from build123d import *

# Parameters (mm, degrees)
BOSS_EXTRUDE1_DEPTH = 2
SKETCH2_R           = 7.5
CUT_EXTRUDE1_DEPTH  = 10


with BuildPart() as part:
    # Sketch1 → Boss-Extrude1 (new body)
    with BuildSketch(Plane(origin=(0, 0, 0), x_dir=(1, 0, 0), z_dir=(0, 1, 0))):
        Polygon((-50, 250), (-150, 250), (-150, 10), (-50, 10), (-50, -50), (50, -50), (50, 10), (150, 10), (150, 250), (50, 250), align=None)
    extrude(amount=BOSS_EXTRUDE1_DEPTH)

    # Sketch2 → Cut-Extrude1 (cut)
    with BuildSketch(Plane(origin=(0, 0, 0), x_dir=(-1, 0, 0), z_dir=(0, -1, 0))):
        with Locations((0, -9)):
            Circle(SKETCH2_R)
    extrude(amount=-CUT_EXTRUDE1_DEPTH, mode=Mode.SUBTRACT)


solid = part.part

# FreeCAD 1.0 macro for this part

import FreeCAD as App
import Part
import Sketcher

V = App.Vector
Q = App.Units.Quantity


def add_polygon(sketch, points):
    """Adds a closed chain of lines whose ends are joined by coincident constraints."""
    first, n = sketch.GeometryCount, len(points)
    for a, b in zip(points, points[1:] + points[:1]):
        sketch.addGeometry(Part.LineSegment(App.Vector(*a, 0), App.Vector(*b, 0)), False)
    for i in range(n):
        sketch.addConstraint(Sketcher.Constraint("Coincident", first + i, 2, first + (i + 1) % n, 1))

doc = App.newDocument("Part")
body = doc.addObject("PartDesign::Body", "Body")

sketch1 = body.newObject("Sketcher::SketchObject", "Sketch")
sketch1.AttachmentSupport = (doc.getObject("XZ_Plane"), [""])
sketch1.MapMode = "FlatFace"
add_polygon(sketch1, [(-150, -250), (-150, -10), (-50, -10), (-50, 50), (50, 50), (50, -10), (150, -10), (150, -250)])
sketch1.addConstraint([
    Sketcher.Constraint("Vertical", 0),
    Sketcher.Constraint("Horizontal", 1),
    Sketcher.Constraint("Vertical", 2),
    Sketcher.Constraint("Horizontal", 3),
    Sketcher.Constraint("Vertical", 4),
    Sketcher.Constraint("Horizontal", 5),
    Sketcher.Constraint("Vertical", 6),
    Sketcher.Constraint("Horizontal", 7),
    Sketcher.Constraint("Symmetric", 1, 2, 4, 2, -2),
    Sketcher.Constraint("Equal", 1, 3),
    Sketcher.Constraint("Equal", 3, 5),
    Sketcher.Constraint("DistanceX", 1, 1, 1, 2, Q("100 mm")),
    Sketcher.Constraint("DistanceY", 0, 1, 0, 2, Q("240 mm")),
    Sketcher.Constraint("DistanceY", 2, 1, 2, 2, Q("60 mm")),
    Sketcher.Constraint("DistanceY", 0, 2, -1, 1, Q("10 mm")),
])
pad1 = body.newObject("PartDesign::Pad", "Pad")
pad1.Profile = sketch1
pad1.Length = 2
pad1.Reversed = True

sketch2 = body.newObject("Sketcher::SketchObject", "Sketch001")
sketch2.AttachmentSupport = (doc.getObject("XZ_Plane"), [""])
sketch2.MapMode = "FlatFace"
sketch2.addGeometry(Part.Circle(V(0, 9, 0), V(0, 0, 1), 8), False)
sketch2.addConstraint([
    Sketcher.Constraint("PointOnObject", 0, 3, -2),
    Sketcher.Constraint("Diameter", 0, Q("15 mm")),
    Sketcher.Constraint("DistanceY", -1, 1, 0, 3, Q("9 mm")),
])
pocket1 = body.newObject("PartDesign::Pocket", "Pocket")
pocket1.Profile = sketch2
pocket1.Length = 10

doc.recompute()
